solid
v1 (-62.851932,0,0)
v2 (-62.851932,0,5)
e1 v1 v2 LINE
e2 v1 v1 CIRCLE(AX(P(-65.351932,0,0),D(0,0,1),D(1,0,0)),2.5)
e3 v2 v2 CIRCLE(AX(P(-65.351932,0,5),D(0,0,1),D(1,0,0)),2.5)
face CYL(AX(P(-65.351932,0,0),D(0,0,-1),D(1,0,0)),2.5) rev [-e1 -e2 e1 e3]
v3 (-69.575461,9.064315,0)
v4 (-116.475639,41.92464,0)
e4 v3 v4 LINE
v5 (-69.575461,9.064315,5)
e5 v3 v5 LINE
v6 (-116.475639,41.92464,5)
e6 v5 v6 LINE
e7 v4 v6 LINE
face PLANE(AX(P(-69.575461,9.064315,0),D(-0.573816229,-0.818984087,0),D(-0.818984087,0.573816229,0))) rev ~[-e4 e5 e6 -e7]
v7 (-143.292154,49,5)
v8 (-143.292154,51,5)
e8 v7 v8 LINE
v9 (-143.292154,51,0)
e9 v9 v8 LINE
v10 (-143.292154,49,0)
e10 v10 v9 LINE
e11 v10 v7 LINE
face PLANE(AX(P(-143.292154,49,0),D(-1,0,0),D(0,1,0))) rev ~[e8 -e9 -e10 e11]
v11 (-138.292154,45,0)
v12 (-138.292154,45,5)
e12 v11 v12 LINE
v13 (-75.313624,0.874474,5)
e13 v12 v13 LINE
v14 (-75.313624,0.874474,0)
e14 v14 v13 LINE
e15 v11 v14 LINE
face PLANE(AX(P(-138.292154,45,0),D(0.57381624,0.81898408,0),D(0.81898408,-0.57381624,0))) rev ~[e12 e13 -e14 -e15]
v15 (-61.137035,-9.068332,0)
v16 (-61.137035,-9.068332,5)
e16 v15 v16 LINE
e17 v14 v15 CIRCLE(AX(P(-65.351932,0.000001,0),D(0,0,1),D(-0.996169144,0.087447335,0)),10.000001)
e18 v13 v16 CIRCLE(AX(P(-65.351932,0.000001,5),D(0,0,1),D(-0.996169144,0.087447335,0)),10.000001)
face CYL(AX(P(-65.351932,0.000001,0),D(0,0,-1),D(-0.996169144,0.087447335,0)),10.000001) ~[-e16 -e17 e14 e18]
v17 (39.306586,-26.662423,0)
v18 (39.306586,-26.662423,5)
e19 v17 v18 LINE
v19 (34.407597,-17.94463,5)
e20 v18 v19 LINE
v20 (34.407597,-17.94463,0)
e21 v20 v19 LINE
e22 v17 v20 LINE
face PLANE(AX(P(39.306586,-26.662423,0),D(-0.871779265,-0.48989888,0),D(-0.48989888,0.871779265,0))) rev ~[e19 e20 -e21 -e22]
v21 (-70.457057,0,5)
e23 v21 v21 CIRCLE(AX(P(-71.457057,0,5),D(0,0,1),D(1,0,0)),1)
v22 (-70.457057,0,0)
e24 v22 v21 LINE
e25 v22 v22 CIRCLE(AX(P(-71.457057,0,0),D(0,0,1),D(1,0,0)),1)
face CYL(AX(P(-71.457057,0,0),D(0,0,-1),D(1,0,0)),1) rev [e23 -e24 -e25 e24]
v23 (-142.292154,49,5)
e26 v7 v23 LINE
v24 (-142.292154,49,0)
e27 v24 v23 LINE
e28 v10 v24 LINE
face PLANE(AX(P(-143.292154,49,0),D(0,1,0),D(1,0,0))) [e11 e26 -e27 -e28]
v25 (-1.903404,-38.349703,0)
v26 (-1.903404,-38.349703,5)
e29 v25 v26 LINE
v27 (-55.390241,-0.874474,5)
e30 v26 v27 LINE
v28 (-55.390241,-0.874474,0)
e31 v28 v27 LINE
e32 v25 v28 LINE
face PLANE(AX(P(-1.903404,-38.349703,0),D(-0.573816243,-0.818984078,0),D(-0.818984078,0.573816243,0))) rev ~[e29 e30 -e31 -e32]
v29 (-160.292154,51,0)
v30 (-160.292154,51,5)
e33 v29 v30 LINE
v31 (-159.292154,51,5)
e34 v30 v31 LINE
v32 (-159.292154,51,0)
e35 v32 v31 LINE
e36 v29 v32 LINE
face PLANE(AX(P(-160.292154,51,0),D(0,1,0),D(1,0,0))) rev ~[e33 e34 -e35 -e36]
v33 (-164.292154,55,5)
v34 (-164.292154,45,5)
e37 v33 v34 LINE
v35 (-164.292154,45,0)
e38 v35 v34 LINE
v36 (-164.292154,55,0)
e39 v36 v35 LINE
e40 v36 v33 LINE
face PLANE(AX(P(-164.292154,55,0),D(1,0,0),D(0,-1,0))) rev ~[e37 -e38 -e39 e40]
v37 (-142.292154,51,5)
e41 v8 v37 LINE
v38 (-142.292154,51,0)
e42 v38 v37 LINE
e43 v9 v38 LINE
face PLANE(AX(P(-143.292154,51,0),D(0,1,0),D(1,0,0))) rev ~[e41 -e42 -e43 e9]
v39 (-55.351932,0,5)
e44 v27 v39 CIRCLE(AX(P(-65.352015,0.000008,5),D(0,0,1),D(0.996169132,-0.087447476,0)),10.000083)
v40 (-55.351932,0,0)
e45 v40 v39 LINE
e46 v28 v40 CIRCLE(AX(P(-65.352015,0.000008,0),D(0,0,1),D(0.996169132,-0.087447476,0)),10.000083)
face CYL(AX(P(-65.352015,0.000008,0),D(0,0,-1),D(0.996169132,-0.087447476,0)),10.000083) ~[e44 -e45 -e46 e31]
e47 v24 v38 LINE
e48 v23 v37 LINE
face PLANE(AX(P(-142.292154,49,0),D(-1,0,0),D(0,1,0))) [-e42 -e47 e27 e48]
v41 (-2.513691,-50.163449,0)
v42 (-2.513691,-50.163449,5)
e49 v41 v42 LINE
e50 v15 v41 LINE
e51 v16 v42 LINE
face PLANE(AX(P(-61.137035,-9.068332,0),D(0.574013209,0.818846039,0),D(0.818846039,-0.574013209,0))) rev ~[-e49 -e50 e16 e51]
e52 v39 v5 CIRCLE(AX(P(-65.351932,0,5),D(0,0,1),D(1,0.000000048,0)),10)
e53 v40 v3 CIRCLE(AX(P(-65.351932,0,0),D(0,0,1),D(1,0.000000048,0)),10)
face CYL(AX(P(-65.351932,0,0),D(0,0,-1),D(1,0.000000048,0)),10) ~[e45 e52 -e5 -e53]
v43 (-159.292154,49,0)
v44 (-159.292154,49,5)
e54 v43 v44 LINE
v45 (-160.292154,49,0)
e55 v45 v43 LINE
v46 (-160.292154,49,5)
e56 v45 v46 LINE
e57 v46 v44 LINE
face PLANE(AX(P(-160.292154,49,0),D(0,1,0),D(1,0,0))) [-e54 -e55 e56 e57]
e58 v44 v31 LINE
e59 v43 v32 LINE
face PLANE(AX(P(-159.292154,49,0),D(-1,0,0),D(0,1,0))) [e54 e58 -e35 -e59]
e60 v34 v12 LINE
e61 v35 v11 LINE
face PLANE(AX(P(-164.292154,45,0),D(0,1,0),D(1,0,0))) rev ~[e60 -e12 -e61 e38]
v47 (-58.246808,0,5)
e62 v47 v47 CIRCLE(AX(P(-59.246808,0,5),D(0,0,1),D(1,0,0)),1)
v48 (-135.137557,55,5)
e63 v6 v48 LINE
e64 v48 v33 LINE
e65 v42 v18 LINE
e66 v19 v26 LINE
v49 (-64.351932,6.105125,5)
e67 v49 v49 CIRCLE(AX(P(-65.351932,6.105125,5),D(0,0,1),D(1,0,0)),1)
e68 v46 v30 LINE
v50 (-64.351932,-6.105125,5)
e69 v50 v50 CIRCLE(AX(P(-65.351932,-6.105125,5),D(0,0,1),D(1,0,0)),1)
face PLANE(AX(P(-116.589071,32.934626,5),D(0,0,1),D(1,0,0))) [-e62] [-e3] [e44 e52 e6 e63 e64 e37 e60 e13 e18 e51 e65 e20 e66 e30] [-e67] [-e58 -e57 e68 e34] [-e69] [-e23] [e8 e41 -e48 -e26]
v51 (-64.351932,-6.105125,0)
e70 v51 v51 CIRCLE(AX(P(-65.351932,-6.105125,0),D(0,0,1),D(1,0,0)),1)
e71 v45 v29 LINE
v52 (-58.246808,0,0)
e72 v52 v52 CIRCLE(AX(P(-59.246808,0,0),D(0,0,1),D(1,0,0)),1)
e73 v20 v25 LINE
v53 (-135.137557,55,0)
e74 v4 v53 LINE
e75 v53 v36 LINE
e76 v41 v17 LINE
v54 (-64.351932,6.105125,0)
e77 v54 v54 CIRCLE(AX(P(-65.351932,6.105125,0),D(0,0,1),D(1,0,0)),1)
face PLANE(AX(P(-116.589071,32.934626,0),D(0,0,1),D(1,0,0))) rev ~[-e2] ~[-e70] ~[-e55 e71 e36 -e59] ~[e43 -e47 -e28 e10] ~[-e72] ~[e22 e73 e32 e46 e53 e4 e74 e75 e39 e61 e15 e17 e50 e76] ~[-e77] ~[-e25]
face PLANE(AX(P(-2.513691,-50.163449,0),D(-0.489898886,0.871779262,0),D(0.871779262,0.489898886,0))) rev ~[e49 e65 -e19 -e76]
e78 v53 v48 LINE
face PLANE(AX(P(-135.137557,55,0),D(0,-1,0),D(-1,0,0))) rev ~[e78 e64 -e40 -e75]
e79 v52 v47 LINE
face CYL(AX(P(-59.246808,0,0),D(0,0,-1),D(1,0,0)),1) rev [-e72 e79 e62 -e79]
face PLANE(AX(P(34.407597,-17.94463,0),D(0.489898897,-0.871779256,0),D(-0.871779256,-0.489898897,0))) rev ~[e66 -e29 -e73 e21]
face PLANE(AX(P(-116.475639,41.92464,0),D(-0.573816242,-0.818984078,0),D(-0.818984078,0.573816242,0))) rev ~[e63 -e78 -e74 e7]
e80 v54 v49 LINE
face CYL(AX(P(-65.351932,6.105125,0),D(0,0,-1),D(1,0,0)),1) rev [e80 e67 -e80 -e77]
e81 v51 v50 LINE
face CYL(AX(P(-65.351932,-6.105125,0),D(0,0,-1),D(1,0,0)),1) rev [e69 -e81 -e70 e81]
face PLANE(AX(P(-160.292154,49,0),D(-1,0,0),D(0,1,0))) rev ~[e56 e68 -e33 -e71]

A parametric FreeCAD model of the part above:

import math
import FreeCAD as App
import Part
import Sketcher

doc = App.newDocument("Part")
body = doc.addObject("PartDesign::Body", "Body")

# Sketch on XY plane
sketch1 = body.newObject("Sketcher::SketchObject", "Sketch")
sketch1.AttachmentSupport = (doc.getObject("XY_Plane"), [""])
sketch1.MapMode = "FlatFace"
sketch1.addGeometry(Part.LineSegment(App.Vector(-69.6, 9.1, 0), App.Vector(-116.5, 41.9, 0)), False)
sketch1.addGeometry(Part.LineSegment(App.Vector(-116.5, 41.9, 0), App.Vector(-135.1, 55, 0)), False)
sketch1.addGeometry(Part.LineSegment(App.Vector(-135.1, 55, 0), App.Vector(-164.3, 55, 0)), False)
sketch1.addGeometry(Part.LineSegment(App.Vector(-164.3, 55, 0), App.Vector(-164.3, 45, 0)), False)
sketch1.addGeometry(Part.LineSegment(App.Vector(-164.3, 45, 0), App.Vector(-138.3, 45, 0)), False)
sketch1.addGeometry(Part.LineSegment(App.Vector(-138.3, 45, 0), App.Vector(-75.3, 0.9, 0)), False)
sketch1.addGeometry(Part.ArcOfCircle(Part.Circle(App.Vector(-65.4, 0, 0), App.Vector(0, 0, 1), 10), math.radians(175), math.radians(295)), False)
sketch1.addGeometry(Part.LineSegment(App.Vector(-61.1, -9.1, 0), App.Vector(-2.5, -50.2, 0)), False)
sketch1.addGeometry(Part.LineSegment(App.Vector(-2.5, -50.2, 0), App.Vector(39.3, -26.7, 0)), False)
sketch1.addGeometry(Part.LineSegment(App.Vector(39.3, -26.7, 0), App.Vector(34.4, -17.9, 0)), False)
sketch1.addGeometry(Part.LineSegment(App.Vector(34.4, -17.9, 0), App.Vector(-1.9, -38.3, 0)), False)
sketch1.addGeometry(Part.LineSegment(App.Vector(-1.9, -38.3, 0), App.Vector(-55.4, -0.9, 0)), False)
sketch1.addGeometry(Part.ArcOfCircle(Part.Circle(App.Vector(-65.4, 0, 0), App.Vector(0, 0, 1), 10), math.radians(-5.02), math.radians(0)), False)
sketch1.addGeometry(Part.ArcOfCircle(Part.Circle(App.Vector(-65.4, 0, 0), App.Vector(0, 0, 1), 10), math.radians(0), math.radians(115)), False)
sketch1.addGeometry(Part.Circle(App.Vector(-71.5, 0, 0), App.Vector(0, 0, 1), 1), False)
sketch1.addGeometry(Part.Circle(App.Vector(-65.4, -6.1, 0), App.Vector(0, 0, 1), 1), False)
sketch1.addGeometry(Part.Circle(App.Vector(-65.4, 0, 0), App.Vector(0, 0, 1), 2.5), False)
sketch1.addGeometry(Part.Circle(App.Vector(-59.2, 0, 0), App.Vector(0, 0, 1), 1), False)
sketch1.addGeometry(Part.Circle(App.Vector(-65.4, 6.1, 0), App.Vector(0, 0, 1), 1), False)
sketch1.addGeometry(Part.LineSegment(App.Vector(-159.3, 49, 0), App.Vector(-160.3, 49, 0)), False)
sketch1.addGeometry(Part.LineSegment(App.Vector(-160.3, 49, 0), App.Vector(-160.3, 51, 0)), False)
sketch1.addGeometry(Part.LineSegment(App.Vector(-160.3, 51, 0), App.Vector(-159.3, 51, 0)), False)
sketch1.addGeometry(Part.LineSegment(App.Vector(-159.3, 51, 0), App.Vector(-159.3, 49, 0)), False)
sketch1.addGeometry(Part.LineSegment(App.Vector(-142.3, 49, 0), App.Vector(-143.3, 49, 0)), False)
sketch1.addGeometry(Part.LineSegment(App.Vector(-143.3, 49, 0), App.Vector(-143.3, 51, 0)), False)
sketch1.addGeometry(Part.LineSegment(App.Vector(-143.3, 51, 0), App.Vector(-142.3, 51, 0)), False)
sketch1.addGeometry(Part.LineSegment(App.Vector(-142.3, 51, 0), App.Vector(-142.3, 49, 0)), False)
sketch1.addConstraint(Sketcher.Constraint("Coincident", 0, 2, 1, 1))
sketch1.addConstraint(Sketcher.Constraint("Coincident", 1, 2, 2, 1))
sketch1.addConstraint(Sketcher.Constraint("Coincident", 2, 2, 3, 1))
sketch1.addConstraint(Sketcher.Constraint("Coincident", 3, 2, 4, 1))
sketch1.addConstraint(Sketcher.Constraint("Coincident", 4, 2, 5, 1))
sketch1.addConstraint(Sketcher.Constraint("Coincident", 5, 2, 6, 1))
sketch1.addConstraint(Sketcher.Constraint("Coincident", 6, 2, 7, 1))
sketch1.addConstraint(Sketcher.Constraint("Coincident", 7, 2, 8, 1))
sketch1.addConstraint(Sketcher.Constraint("Coincident", 8, 2, 9, 1))
sketch1.addConstraint(Sketcher.Constraint("Coincident", 9, 2, 10, 1))
sketch1.addConstraint(Sketcher.Constraint("Coincident", 10, 2, 11, 1))
sketch1.addConstraint(Sketcher.Constraint("Coincident", 11, 2, 12, 1))
sketch1.addConstraint(Sketcher.Constraint("Tangent", 12, 2, 13, 1))
sketch1.addConstraint(Sketcher.Constraint("Coincident", 13, 2, 0, 1))
sketch1.addConstraint(Sketcher.Constraint("Coincident", 19, 2, 20, 1))
sketch1.addConstraint(Sketcher.Constraint("Coincident", 20, 2, 21, 1))
sketch1.addConstraint(Sketcher.Constraint("Coincident", 21, 2, 22, 1))
sketch1.addConstraint(Sketcher.Constraint("Coincident", 22, 2, 19, 1))
sketch1.addConstraint(Sketcher.Constraint("Coincident", 23, 2, 24, 1))
sketch1.addConstraint(Sketcher.Constraint("Coincident", 24, 2, 25, 1))
sketch1.addConstraint(Sketcher.Constraint("Coincident", 25, 2, 26, 1))
sketch1.addConstraint(Sketcher.Constraint("Coincident", 26, 2, 23, 1))
sketch1.addConstraint(Sketcher.Constraint("Horizontal", 2))
sketch1.addConstraint(Sketcher.Constraint("Vertical", 3))
sketch1.addConstraint(Sketcher.Constraint("Horizontal", 4))
sketch1.addConstraint(Sketcher.Constraint("Horizontal", 19))
sketch1.addConstraint(Sketcher.Constraint("Vertical", 20))
sketch1.addConstraint(Sketcher.Constraint("Horizontal", 21))
sketch1.addConstraint(Sketcher.Constraint("Vertical", 22))
sketch1.addConstraint(Sketcher.Constraint("Horizontal", 23))
sketch1.addConstraint(Sketcher.Constraint("Vertical", 24))
sketch1.addConstraint(Sketcher.Constraint("Horizontal", 25))
sketch1.addConstraint(Sketcher.Constraint("Vertical", 26))
sketch1.addConstraint(Sketcher.Constraint("Coincident", 13, 3, 6, 3))
sketch1.addConstraint(Sketcher.Constraint("Coincident", 16, 3, 6, 3))
sketch1.addConstraint(Sketcher.Constraint("Equal", 6, 13))
sketch1.addConstraint(Sketcher.Constraint("Equal", 14, 15))
sketch1.addConstraint(Sketcher.Constraint("Equal", 15, 17))
sketch1.addConstraint(Sketcher.Constraint("Equal", 17, 18))
sketch1.addConstraint(Sketcher.Constraint("Symmetric", 15, 3, 18, 3, -1))
sketch1.addConstraint(Sketcher.Constraint("PointOnObject", 6, 3, -1))
sketch1.addConstraint(Sketcher.Constraint("PointOnObject", 14, 3, -1))
sketch1.addConstraint(Sketcher.Constraint("PointOnObject", 17, 3, -1))
sketch1.addConstraint(Sketcher.Constraint("PointOnObject", 12, 2, -1))
sketch1.addConstraint(Sketcher.Constraint("Parallel", 0, 1))
sketch1.addConstraint(Sketcher.Constraint("Parallel", 1, 5))
sketch1.addConstraint(Sketcher.Constraint("Perpendicular", 8, 9))
sketch1.addConstraint(Sketcher.Constraint("Perpendicular", 9, 10))
sketch1.addConstraint(Sketcher.Constraint("Parallel", 5, 11))
sketch1.addConstraint(Sketcher.Constraint("Horizontal", 22, 2, 23, 2))
sketch1.addConstraint(Sketcher.Constraint("Horizontal", 21, 2, 24, 2))
sketch1.addConstraint(Sketcher.Constraint("Vertical", 13, 3, 15, 3))
sketch1.addConstraint(Sketcher.Constraint("Equal", 21, 23))
sketch1.addConstraint(Sketcher.Constraint("Diameter", 14, 2.0))
sketch1.addConstraint(Sketcher.Constraint("Diameter", 16, 5.0))
sketch1.addConstraint(Sketcher.Constraint("Radius", 6, 10.000001))
sketch1.addConstraint(Sketcher.Constraint("DistanceX", 4, 1, 4, 2, 26.0))
sketch1.addConstraint(Sketcher.Constraint("DistanceX", 19, 2, 19, 1, 1.0))
sketch1.addConstraint(Sketcher.Constraint("DistanceY", 3, 2, 3, 1, 10.0))
sketch1.addConstraint(Sketcher.Constraint("DistanceY", 20, 1, 20, 2, 2.0))
sketch1.addConstraint(Sketcher.Constraint("Distance", 9, 10.0))
sketch1.addConstraint(Sketcher.Constraint("DistanceY", -1, 1, 1, 2, 55.0))
sketch1.addConstraint(Sketcher.Constraint("DistanceY", -1, 1, 19, 2, 49.0))
sketch1.addConstraint(Sketcher.Constraint("DistanceX", 3, 2, 19, 2, 4.0))
sketch1.addConstraint(Sketcher.Constraint("DistanceX", 23, 2, 4, 2, 5.0))
sketch1.addConstraint(Sketcher.Constraint("Radius", 12, 10.000083))
sketch1.addConstraint(Sketcher.Constraint("DistanceX", 10, 2, 9, 2, 36.311001))
sketch1.addConstraint(Sketcher.Constraint("Distance", 10, 41.6516))
sketch1.addConstraint(Sketcher.Constraint("DistanceX", 1, 2, 14, 3, 63.6805))
sketch1.addConstraint(Sketcher.Constraint("DistanceY", 9, 2, 6, 2, 8.876298))
sketch1.addConstraint(Sketcher.Constraint("DistanceX", 2, 2, 2, 1, 29.154597))
sketch1.addConstraint(Sketcher.Constraint("DistanceX", 6, 3, -1, 1, 65.351932))
sketch1.addConstraint(Sketcher.Constraint("DistanceX", 0, 2, -1, 1, 116.475639))
sketch1.addConstraint(Sketcher.Constraint("DistanceY", -1, 1, 0, 2, 41.92464))
sketch1.addConstraint(Sketcher.Constraint("DistanceY", 6, 2, -1, 1, 9.068332))
sketch1.addConstraint(Sketcher.Constraint("DistanceX", 7, 2, -1, 1, 2.513691))
sketch1.addConstraint(Sketcher.Constraint("DistanceY", 7, 2, -1, 1, 50.163449))
sketch1.addConstraint(Sketcher.Constraint("DistanceX", 11, 2, -1, 1, 55.390241))
sketch1.addConstraint(Sketcher.Constraint("DistanceY", 18, 3, 13, 2, 2.95919))
sketch1.addConstraint(Sketcher.Constraint("DistanceX", 17, 3, -1, 1, 59.246808))
pad1 = body.newObject("PartDesign::Pad", "Pad")
pad1.Profile = sketch1
pad1.Length = 5

doc.recompute()
